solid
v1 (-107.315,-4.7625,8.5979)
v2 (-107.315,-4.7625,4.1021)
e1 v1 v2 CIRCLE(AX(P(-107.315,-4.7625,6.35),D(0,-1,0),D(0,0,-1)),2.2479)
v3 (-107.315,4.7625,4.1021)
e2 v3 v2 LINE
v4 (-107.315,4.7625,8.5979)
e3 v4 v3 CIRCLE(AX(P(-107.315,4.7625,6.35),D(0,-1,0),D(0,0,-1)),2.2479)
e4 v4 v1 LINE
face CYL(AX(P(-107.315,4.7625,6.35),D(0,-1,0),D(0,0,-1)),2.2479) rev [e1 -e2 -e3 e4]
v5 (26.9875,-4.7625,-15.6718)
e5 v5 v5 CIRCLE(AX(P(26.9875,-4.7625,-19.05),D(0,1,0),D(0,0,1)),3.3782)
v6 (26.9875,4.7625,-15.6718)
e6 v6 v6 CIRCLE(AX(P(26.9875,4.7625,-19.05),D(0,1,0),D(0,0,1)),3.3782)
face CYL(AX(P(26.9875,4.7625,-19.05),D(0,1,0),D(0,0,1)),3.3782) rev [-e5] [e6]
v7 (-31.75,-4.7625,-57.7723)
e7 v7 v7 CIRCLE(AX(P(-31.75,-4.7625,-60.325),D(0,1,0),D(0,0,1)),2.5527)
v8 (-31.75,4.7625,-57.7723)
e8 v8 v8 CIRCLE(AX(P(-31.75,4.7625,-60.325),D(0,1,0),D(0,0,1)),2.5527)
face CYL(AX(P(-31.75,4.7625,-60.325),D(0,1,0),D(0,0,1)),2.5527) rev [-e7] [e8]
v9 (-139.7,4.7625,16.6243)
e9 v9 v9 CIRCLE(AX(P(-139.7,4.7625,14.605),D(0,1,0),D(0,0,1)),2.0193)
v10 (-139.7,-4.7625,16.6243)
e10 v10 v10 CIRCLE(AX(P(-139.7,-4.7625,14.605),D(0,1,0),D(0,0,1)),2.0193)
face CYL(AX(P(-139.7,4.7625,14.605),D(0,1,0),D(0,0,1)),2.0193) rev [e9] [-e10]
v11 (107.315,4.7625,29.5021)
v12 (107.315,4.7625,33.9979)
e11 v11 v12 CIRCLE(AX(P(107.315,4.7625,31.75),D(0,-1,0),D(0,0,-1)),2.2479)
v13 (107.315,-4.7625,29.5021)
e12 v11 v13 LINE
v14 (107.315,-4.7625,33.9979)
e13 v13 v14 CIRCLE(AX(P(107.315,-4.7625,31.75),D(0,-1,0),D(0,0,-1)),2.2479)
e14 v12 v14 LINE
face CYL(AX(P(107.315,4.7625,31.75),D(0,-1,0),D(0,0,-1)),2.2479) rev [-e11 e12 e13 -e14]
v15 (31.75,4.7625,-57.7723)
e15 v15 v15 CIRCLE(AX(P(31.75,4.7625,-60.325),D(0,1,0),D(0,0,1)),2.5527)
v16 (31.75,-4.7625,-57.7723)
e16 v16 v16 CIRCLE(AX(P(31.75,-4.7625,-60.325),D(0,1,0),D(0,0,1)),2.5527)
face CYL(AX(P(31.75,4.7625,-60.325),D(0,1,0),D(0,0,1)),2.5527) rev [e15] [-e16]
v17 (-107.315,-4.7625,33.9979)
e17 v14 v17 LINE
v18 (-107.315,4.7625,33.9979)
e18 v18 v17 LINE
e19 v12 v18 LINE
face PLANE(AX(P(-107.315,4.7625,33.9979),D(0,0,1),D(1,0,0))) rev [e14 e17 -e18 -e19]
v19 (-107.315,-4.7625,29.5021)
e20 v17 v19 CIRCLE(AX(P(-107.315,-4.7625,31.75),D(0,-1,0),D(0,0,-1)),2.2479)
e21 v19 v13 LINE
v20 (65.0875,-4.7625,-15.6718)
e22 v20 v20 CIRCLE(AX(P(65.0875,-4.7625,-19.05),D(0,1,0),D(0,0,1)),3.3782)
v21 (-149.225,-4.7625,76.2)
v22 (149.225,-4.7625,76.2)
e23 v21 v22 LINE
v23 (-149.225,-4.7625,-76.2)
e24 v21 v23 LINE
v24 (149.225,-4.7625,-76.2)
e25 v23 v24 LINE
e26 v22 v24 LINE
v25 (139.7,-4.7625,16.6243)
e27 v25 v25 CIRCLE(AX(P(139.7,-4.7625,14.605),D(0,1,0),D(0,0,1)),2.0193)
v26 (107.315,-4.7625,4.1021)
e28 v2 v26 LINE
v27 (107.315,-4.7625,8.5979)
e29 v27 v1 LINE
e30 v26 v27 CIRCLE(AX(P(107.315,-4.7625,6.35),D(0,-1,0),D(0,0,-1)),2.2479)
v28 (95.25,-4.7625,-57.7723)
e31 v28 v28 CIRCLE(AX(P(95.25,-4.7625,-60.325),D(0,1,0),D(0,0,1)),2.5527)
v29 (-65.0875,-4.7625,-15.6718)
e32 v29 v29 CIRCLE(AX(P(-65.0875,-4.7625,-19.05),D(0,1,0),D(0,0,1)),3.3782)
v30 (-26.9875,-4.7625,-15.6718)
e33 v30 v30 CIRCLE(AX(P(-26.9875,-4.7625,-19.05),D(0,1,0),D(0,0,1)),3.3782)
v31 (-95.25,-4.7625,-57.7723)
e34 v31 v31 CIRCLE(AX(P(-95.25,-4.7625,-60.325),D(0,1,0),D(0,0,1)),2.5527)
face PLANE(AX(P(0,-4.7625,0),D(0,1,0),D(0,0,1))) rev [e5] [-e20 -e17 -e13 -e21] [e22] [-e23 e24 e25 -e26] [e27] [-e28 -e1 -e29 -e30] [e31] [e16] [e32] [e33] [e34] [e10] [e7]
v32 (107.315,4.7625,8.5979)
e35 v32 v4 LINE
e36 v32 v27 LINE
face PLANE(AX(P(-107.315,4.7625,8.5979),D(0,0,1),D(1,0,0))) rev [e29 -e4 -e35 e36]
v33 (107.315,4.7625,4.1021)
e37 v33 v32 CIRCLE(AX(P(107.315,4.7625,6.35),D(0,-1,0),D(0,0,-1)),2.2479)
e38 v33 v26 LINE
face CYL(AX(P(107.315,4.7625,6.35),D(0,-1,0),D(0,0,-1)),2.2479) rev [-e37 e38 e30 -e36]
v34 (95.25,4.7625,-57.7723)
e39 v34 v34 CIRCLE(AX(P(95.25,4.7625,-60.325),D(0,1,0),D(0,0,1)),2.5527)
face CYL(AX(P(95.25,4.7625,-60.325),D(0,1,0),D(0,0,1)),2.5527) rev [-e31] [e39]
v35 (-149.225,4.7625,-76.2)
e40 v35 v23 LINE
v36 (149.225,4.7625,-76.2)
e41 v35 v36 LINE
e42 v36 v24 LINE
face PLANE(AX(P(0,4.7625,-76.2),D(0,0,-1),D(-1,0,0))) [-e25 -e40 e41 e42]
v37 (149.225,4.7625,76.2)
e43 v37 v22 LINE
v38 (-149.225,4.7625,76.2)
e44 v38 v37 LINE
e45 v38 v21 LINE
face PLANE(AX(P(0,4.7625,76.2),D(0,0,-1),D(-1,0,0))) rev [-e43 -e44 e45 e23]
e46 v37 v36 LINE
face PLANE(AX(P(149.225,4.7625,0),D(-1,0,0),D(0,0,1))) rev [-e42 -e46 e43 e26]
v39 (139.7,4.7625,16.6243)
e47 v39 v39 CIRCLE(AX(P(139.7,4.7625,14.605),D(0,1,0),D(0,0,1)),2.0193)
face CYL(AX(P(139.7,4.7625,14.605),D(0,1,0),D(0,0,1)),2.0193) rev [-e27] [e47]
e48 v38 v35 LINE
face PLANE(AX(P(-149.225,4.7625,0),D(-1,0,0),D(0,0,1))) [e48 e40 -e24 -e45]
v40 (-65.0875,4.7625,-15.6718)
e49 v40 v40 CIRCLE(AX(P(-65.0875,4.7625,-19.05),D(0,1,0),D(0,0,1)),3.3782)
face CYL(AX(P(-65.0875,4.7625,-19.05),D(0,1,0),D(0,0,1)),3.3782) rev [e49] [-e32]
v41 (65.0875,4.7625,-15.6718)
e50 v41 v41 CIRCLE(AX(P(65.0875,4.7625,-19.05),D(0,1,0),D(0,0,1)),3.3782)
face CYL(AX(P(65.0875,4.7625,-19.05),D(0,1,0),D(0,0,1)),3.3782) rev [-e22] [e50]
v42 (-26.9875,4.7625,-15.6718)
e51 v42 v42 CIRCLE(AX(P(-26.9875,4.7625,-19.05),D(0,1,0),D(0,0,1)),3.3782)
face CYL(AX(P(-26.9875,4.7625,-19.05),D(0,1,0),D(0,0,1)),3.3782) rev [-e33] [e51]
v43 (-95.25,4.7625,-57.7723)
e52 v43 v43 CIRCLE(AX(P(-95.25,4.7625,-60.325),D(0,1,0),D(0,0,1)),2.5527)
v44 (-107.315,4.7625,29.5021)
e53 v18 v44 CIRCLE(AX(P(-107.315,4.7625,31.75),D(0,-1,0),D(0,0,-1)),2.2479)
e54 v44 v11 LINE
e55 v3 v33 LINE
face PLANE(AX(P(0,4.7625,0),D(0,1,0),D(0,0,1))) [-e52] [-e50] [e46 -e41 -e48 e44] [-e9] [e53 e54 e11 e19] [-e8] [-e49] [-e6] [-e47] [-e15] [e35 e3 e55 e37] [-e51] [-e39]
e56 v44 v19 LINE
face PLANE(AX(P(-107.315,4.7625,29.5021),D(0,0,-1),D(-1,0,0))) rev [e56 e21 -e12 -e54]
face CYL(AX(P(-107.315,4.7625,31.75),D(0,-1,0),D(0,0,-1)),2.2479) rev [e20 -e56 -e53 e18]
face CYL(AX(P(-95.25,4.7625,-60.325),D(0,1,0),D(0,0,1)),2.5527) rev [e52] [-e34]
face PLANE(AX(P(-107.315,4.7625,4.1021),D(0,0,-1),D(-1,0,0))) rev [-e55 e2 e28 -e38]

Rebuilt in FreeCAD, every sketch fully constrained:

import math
import FreeCAD as App
import Part
import Sketcher
from FreeCAD import Vector
Q = App.Units.Quantity


def add_polygon(sketch, points):
    """Adds a closed chain of lines whose ends are joined by coincident constraints."""
    first, n = sketch.GeometryCount, len(points)
    for a, b in zip(points, points[1:] + points[:1]):
        sketch.addGeometry(Part.LineSegment(App.Vector(*a, 0), App.Vector(*b, 0)), False)
    for i in range(n):
        sketch.addConstraint(Sketcher.Constraint("Coincident", first + i, 2, first + (i + 1) % n, 1))

doc = App.newDocument("Part")
body = doc.addObject("PartDesign::Body", "Body")

sketch1 = body.newObject("Sketcher::SketchObject", "Sketch")
sketch1.AttachmentSupport = (doc.getObject("XZ_Plane"), [""])
sketch1.MapMode = "FlatFace"
add_polygon(sketch1, [(-149.225, -76.2), (-149.225, 76.2), (149.225, 76.2), (149.225, -76.2)])
sketch1.addConstraint([
    Sketcher.Constraint("Vertical", 0),
    Sketcher.Constraint("Horizontal", 1),
    Sketcher.Constraint("Vertical", 2),
    Sketcher.Constraint("Horizontal", 3),
    Sketcher.Constraint("Symmetric", 0, 2, 2, 2, -1, 1),
    Sketcher.Constraint("DistanceY", 0, 1, 0, 2, Q("6 in")),
    Sketcher.Constraint("DistanceX", 1, 1, 1, 2, Q("11.75 in")),
])
pad1 = body.newObject("PartDesign::Pad", "Pad")
pad1.Profile = sketch1
pad1.Length = Q("0.375 in")
pad1.Midplane = True

sketch2 = body.newObject("Sketcher::SketchObject", "Sketch001")
sketch2.AttachmentSupport = (doc.getObject("XZ_Plane"), [""])
sketch2.MapMode = "FlatFace"
sketch2.AttachmentOffset = App.Placement(Vector(0, 0, 0.1875 * 25.4), App.Rotation())
sketch2.addGeometry([
    Part.LineSegment(Vector(107.315, 33.9979, 0), Vector(-107.315, 33.9979, 0)),
    Part.ArcOfCircle(Part.Circle(Vector(-107.315, 31.75, 0), Vector(0, 0, 1), 2.2479), math.radians(90), math.radians(270)),
    Part.LineSegment(Vector(-107.315, 29.5021, 0), Vector(107.315, 29.5021, 0)),
    Part.ArcOfCircle(Part.Circle(Vector(107.315, 31.75, 0), Vector(0, 0, 1), 2.2479), math.radians(-90), math.radians(90)),
    Part.LineSegment(Vector(107.315, 8.5979, 0), Vector(-107.315, 8.5979, 0)),
    Part.ArcOfCircle(Part.Circle(Vector(-107.315, 6.35, 0), Vector(0, 0, 1), 2.2479), math.radians(90), math.radians(270)),
    Part.LineSegment(Vector(-107.315, 4.1021, 0), Vector(107.315, 4.1021, 0)),
    Part.ArcOfCircle(Part.Circle(Vector(107.315, 6.35, 0), Vector(0, 0, 1), 2.2479), math.radians(-90), math.radians(90)),
], False)
sketch2.addConstraint([
    Sketcher.Constraint("Tangent", 0, 2, 1, 1),
    Sketcher.Constraint("Tangent", 1, 2, 2, 1),
    Sketcher.Constraint("Tangent", 2, 2, 3, 1),
    Sketcher.Constraint("Tangent", 3, 2, 0, 1),
    Sketcher.Constraint("Tangent", 4, 2, 5, 1),
    Sketcher.Constraint("Tangent", 5, 2, 6, 1),
    Sketcher.Constraint("Tangent", 6, 2, 7, 1),
    Sketcher.Constraint("Tangent", 7, 2, 4, 1),
    Sketcher.Constraint("Horizontal", 0),
    Sketcher.Constraint("Horizontal", 2),
    Sketcher.Constraint("Horizontal", 4),
    Sketcher.Constraint("Horizontal", 6),
    Sketcher.Constraint("Equal", 3, 5),
    Sketcher.Constraint("Vertical", 1, 3, 5, 3),
    Sketcher.Constraint("Vertical", 3, 3, 7, 3),
    Sketcher.Constraint("DistanceY", 5, 3, 1, 3, Q("1 in")),
    Sketcher.Constraint("DistanceX", 0, 2, 0, 1, Q("8.45 in")),
    Sketcher.Constraint("Radius", 1, Q("0.0885 in")),
    Sketcher.Constraint("DistanceY", -1, 1, 1, 3, Q("1.25 in")),
    Sketcher.Constraint("DistanceX", 1, 3, -1, 1, Q("4.225 in")),
])
pocket1 = body.newObject("PartDesign::Pocket", "Pocket")
pocket1.Profile = sketch2
pocket1.Type = "ThroughAll"

sketch3 = body.newObject("Sketcher::SketchObject", "Sketch002")
sketch3.AttachmentSupport = (doc.getObject("XZ_Plane"), [""])
sketch3.MapMode = "FlatFace"
sketch3.AttachmentOffset = App.Placement(Vector(0, 0, -0.1875 * 25.4), App.Rotation())
sketch3.addGeometry(Part.Circle(Vector(-95.25, -60.325, 0), Vector(0, 0, 1), 2.5527), False)
sketch3.addConstraint([
    Sketcher.Constraint("Diameter", 0, Q("0.201 in")),
    Sketcher.Constraint("DistanceX", 0, 3, -1, 1, Q("3.75 in")),
    Sketcher.Constraint("DistanceY", 0, 3, -1, 1, Q("2.375 in")),
])
doc.recompute()
hole = body.newObject("PartDesign::Hole", "Hole")
hole.Profile = sketch3
hole.ThreadType = "None"
hole.Diameter = Q("0.201 in")
hole.DepthType = "ThroughAll"
hole.Reversed = True
doc.recompute()

linearpattern = body.newObject("PartDesign::LinearPattern", "LinearPattern")
linearpattern.Originals = [hole]
linearpattern.Direction = (doc.getObject("X_Axis"), [""])
linearpattern.Mode = "offset"
linearpattern.Offset = Q("2.5 in")
linearpattern.Occurrences = 4
body.Tip = linearpattern

sketch4 = body.newObject("Sketcher::SketchObject", "Sketch003")
sketch4.AttachmentSupport = (doc.getObject("XZ_Plane"), [""])
sketch4.MapMode = "FlatFace"
sketch4.AttachmentOffset = App.Placement(Vector(0, 0, -0.1875 * 25.4), App.Rotation())
sketch4.addGeometry([
    Part.Circle(Vector(-139.7, 14.605, 0), Vector(0, 0, 1), 2.0193),
    Part.Circle(Vector(139.7, 14.605, 0), Vector(0, 0, 1), 2.0193),
], False)
sketch4.addConstraint([
    Sketcher.Constraint("Equal", 0, 1),
    Sketcher.Constraint("Symmetric", 0, 3, 1, 3, -2),
    Sketcher.Constraint("Diameter", 0, Q("0.159 in")),
    Sketcher.Constraint("DistanceX", 0, 3, 1, 3, Q("11 in")),
    Sketcher.Constraint("DistanceY", -1, 1, 0, 3, Q("0.575 in")),
])
doc.recompute()
hole2 = body.newObject("PartDesign::Hole", "Hole001")
hole2.Profile = sketch4
hole2.ThreadType = "None"
hole2.Diameter = Q("0.159 in")
hole2.DepthType = "ThroughAll"
hole2.Reversed = True

sketch5 = body.newObject("Sketcher::SketchObject", "Sketch004")
sketch5.AttachmentSupport = (doc.getObject("XZ_Plane"), [""])
sketch5.MapMode = "FlatFace"
sketch5.AttachmentOffset = App.Placement(Vector(0, 0, -0.1875 * 25.4), App.Rotation())
sketch5.addGeometry([
    Part.Circle(Vector(-65.0875, -19.05, 0), Vector(0, 0, 1), 3.3782),
    Part.Circle(Vector(-26.9875, -19.05, 0), Vector(0, 0, 1), 3.3782),
], False)
sketch5.addConstraint([
    Sketcher.Constraint("Equal", 0, 1),
    Sketcher.Constraint("Horizontal", 0, 3, 1, 3),
    Sketcher.Constraint("Diameter", 0, Q("0.266 in")),
    Sketcher.Constraint("DistanceX", 0, 3, 1, 3, Q("1.5 in")),
    Sketcher.Constraint("DistanceY", 0, 3, -1, 1, Q("0.75 in")),
    Sketcher.Constraint("DistanceX", 0, 3, -1, 1, Q("2.5625 in")),
])
doc.recompute()
hole3 = body.newObject("PartDesign::Hole", "Hole002")
hole3.Profile = sketch5
hole3.ThreadType = "None"
hole3.Diameter = Q("0.266 in")
hole3.DepthType = "ThroughAll"
hole3.Reversed = True
doc.recompute()

mirrored = body.newObject("PartDesign::Mirrored", "Mirrored")
mirrored.Originals = [hole3]
mirrored.MirrorPlane = (doc.getObject("YZ_Plane"), [""])
body.Tip = mirrored

doc.recompute()
